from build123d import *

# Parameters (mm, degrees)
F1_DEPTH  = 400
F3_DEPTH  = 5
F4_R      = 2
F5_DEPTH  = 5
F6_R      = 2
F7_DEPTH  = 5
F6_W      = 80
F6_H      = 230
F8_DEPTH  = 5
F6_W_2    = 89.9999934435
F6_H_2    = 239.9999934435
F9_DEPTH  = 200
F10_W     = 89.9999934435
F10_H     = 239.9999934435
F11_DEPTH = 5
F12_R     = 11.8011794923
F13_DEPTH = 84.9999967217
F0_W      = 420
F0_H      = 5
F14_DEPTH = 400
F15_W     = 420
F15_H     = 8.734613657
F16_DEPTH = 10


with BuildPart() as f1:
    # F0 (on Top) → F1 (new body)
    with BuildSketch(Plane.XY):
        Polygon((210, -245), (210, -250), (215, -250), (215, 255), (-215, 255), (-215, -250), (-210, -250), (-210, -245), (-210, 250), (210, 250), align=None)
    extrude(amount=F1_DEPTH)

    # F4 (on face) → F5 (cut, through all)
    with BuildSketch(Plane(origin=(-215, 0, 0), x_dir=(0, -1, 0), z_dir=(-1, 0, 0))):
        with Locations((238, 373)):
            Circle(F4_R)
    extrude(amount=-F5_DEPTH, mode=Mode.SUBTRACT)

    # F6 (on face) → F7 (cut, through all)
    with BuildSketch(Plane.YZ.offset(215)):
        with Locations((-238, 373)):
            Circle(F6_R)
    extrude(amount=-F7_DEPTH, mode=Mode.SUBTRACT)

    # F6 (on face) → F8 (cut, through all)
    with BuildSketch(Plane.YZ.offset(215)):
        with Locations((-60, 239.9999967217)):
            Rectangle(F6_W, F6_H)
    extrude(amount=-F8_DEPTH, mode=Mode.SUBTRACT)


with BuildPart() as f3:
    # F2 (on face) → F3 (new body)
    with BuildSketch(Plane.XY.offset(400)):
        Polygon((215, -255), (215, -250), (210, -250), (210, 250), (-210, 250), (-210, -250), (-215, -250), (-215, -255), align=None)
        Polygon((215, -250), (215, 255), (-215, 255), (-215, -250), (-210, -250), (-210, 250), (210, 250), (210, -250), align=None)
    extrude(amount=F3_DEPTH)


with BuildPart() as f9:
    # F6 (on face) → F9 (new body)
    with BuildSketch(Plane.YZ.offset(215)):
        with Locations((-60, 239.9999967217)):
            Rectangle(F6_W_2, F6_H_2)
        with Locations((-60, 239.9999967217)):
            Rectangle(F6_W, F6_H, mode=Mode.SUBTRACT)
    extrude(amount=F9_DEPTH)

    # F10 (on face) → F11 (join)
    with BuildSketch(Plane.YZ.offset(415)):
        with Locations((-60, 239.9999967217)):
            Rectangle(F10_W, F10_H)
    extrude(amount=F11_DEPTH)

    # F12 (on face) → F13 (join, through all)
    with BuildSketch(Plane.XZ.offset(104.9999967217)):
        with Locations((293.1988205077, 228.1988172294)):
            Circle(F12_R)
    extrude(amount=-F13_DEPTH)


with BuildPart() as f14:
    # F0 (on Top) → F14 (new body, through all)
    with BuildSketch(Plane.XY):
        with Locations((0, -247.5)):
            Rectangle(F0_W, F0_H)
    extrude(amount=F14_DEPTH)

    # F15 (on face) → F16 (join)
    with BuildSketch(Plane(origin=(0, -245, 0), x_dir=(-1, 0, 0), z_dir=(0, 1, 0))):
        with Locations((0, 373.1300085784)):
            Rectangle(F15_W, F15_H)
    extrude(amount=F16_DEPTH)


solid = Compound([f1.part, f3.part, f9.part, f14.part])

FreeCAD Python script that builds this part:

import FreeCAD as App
import Part
import Sketcher
from FreeCAD import Vector

doc = App.newDocument("Part")
body = doc.addObject("PartDesign::Body", "Body")

# Sketch on XY plane
sketch1 = body.newObject("Sketcher::SketchObject", "Sketch")
sketch1.AttachmentSupport = (doc.getObject("XY_Plane"), [""])
sketch1.MapMode = "FlatFace"
sketch1.addGeometry([
    Part.LineSegment(Vector(210, -250, 0), Vector(215, -250, 0)),  # 0
    Part.LineSegment(Vector(215, -250, 0), Vector(215, 255, 0)),  # 1
    Part.LineSegment(Vector(215, 255, 0), Vector(-215, 255, 0)),  # 2
    Part.LineSegment(Vector(-215, 255, 0), Vector(-215, -250, 0)),  # 3
    Part.LineSegment(Vector(-215, -250, 0), Vector(-210, -250, 0)),  # 4
    Part.LineSegment(Vector(-210, -250, 0), Vector(-210, 250, 0)),  # 5
    Part.LineSegment(Vector(-210, 250, 0), Vector(210, 250, 0)),  # 6
    Part.LineSegment(Vector(210, 250, 0), Vector(210, -250, 0)),  # 7
], False)
sketch1.addConstraint([
    Sketcher.Constraint("Coincident", 0, 2, 1, 1),
    Sketcher.Constraint("Coincident", 1, 2, 2, 1),
    Sketcher.Constraint("Coincident", 2, 2, 3, 1),
    Sketcher.Constraint("Coincident", 3, 2, 4, 1),
    Sketcher.Constraint("Coincident", 4, 2, 5, 1),
    Sketcher.Constraint("Coincident", 5, 2, 6, 1),
    Sketcher.Constraint("Coincident", 6, 2, 7, 1),
    Sketcher.Constraint("Coincident", 7, 2, 0, 1),
    Sketcher.Constraint("Horizontal", 0),
    Sketcher.Constraint("Vertical", 1),
    Sketcher.Constraint("Horizontal", 2),
    Sketcher.Constraint("Vertical", 3),
    Sketcher.Constraint("Horizontal", 4),
    Sketcher.Constraint("Vertical", 5),
    Sketcher.Constraint("Horizontal", 6),
    Sketcher.Constraint("Vertical", 7),
    Sketcher.Constraint("Symmetric", 4, 2, 6, 2, -1, 1),
    Sketcher.Constraint("Symmetric", 0, 2, 3, 2, -2),
    Sketcher.Constraint("DistanceX", 0, 1, 0, 2, 5.0),
    Sketcher.Constraint("DistanceX", 2, 2, 2, 1, 430.0),
    Sketcher.Constraint("DistanceY", 1, 1, 1, 2, 505.0),
    Sketcher.Constraint("DistanceY", 5, 1, 5, 2, 500.0),
])
pad1 = body.newObject("PartDesign::Pad", "Pad")
pad1.Profile = sketch1
pad1.Length = 400

# Sketch on YZ plane
sketch2 = body.newObject("Sketcher::SketchObject", "Sketch001")
sketch2.AttachmentSupport = (doc.getObject("YZ_Plane"), [""])
sketch2.MapMode = "FlatFace"
sketch2.AttachmentOffset = App.Placement(Vector(0, 0, -215), App.Rotation())
sketch2.addGeometry(Part.Circle(Vector(-238, 373, 0), Vector(0, 0, 1), 2), False)
sketch2.addConstraint([
    Sketcher.Constraint("Diameter", 0, 4.0),
    Sketcher.Constraint("DistanceX", 0, 3, -1, 1, 238.0),
    Sketcher.Constraint("DistanceY", -1, 1, 0, 3, 373.0),
])
pocket1 = body.newObject("PartDesign::Pocket", "Pocket")
pocket1.Profile = sketch2
pocket1.Type = "ThroughAll"
pocket1.Reversed = True

# Sketch on YZ plane
sketch3 = body.newObject("Sketcher::SketchObject", "Sketch002")
sketch3.AttachmentSupport = (doc.getObject("YZ_Plane"), [""])
sketch3.MapMode = "FlatFace"
sketch3.AttachmentOffset = App.Placement(Vector(0, 0, 215), App.Rotation())
sketch3.addGeometry(Part.Circle(Vector(-238, 373, 0), Vector(0, 0, 1), 2), False)
sketch3.addConstraint([
    Sketcher.Constraint("Diameter", 0, 4.0),
    Sketcher.Constraint("DistanceX", 0, 3, -1, 1, 238.0),
    Sketcher.Constraint("DistanceY", -1, 1, 0, 3, 373.0),
])
pocket2 = body.newObject("PartDesign::Pocket", "Pocket001")
pocket2.Profile = sketch3
pocket2.Type = "ThroughAll"

# Sketch on YZ plane
sketch4 = body.newObject("Sketcher::SketchObject", "Sketch003")
sketch4.AttachmentSupport = (doc.getObject("YZ_Plane"), [""])
sketch4.MapMode = "FlatFace"
sketch4.AttachmentOffset = App.Placement(Vector(0, 0, 215), App.Rotation())
sketch4.addGeometry([
    Part.LineSegment(Vector(-100, 354.999997, 0), Vector(-100, 124.999997, 0)),
    Part.LineSegment(Vector(-100, 124.999997, 0), Vector(-20, 124.999997, 0)),
    Part.LineSegment(Vector(-20, 124.999997, 0), Vector(-20, 354.999997, 0)),
    Part.LineSegment(Vector(-20, 354.999997, 0), Vector(-100, 354.999997, 0)),
], False)
sketch4.addConstraint([
    Sketcher.Constraint("Coincident", 0, 2, 1, 1),
    Sketcher.Constraint("Coincident", 1, 2, 2, 1),
    Sketcher.Constraint("Coincident", 2, 2, 3, 1),
    Sketcher.Constraint("Coincident", 3, 2, 0, 1),
    Sketcher.Constraint("Vertical", 0),
    Sketcher.Constraint("Horizontal", 1),
    Sketcher.Constraint("Vertical", 2),
    Sketcher.Constraint("Horizontal", 3),
    Sketcher.Constraint("DistanceX", 1, 1, 1, 2, 80.0),
    Sketcher.Constraint("DistanceY", 0, 2, 0, 1, 230.0),
    Sketcher.Constraint("DistanceX", 0, 2, -1, 1, 100.0),
    Sketcher.Constraint("DistanceY", -1, 1, 0, 2, 124.999997),
])
pocket3 = body.newObject("PartDesign::Pocket", "Pocket002")
pocket3.Profile = sketch4
pocket3.Length = 5
body2 = doc.addObject("PartDesign::Body", "Body001")

# Sketch on XY plane
sketch5 = body2.newObject("Sketcher::SketchObject", "Sketch004")
sketch5.AttachmentSupport = (doc.getObject("XY_Plane001"), [""])
sketch5.MapMode = "FlatFace"
sketch5.AttachmentOffset = App.Placement(Vector(0, 0, 400), App.Rotation())
sketch5.addGeometry([
    Part.LineSegment(Vector(215, -255, 0), Vector(215, 255, 0)),
    Part.LineSegment(Vector(215, 255, 0), Vector(-215, 255, 0)),
    Part.LineSegment(Vector(-215, 255, 0), Vector(-215, -255, 0)),
    Part.LineSegment(Vector(-215, -255, 0), Vector(215, -255, 0)),
], False)
sketch5.addConstraint([
    Sketcher.Constraint("Coincident", 0, 2, 1, 1),
    Sketcher.Constraint("Coincident", 1, 2, 2, 1),
    Sketcher.Constraint("Coincident", 2, 2, 3, 1),
    Sketcher.Constraint("Coincident", 3, 2, 0, 1),
    Sketcher.Constraint("Vertical", 0),
    Sketcher.Constraint("Horizontal", 1),
    Sketcher.Constraint("Vertical", 2),
    Sketcher.Constraint("Horizontal", 3),
    Sketcher.Constraint("Symmetric", 0, 2, 2, 2, -1, 1),
    Sketcher.Constraint("DistanceX", 1, 2, 1, 1, 430.0),
    Sketcher.Constraint("DistanceY", 0, 1, 0, 2, 510.0),
])
pad2 = body2.newObject("PartDesign::Pad", "Pad001")
pad2.Profile = sketch5
pad2.Length = 5
body3 = doc.addObject("PartDesign::Body", "Body002")

# Sketch on YZ plane
sketch6 = body3.newObject("Sketcher::SketchObject", "Sketch005")
sketch6.AttachmentSupport = (doc.getObject("YZ_Plane002"), [""])
sketch6.MapMode = "FlatFace"
sketch6.AttachmentOffset = App.Placement(Vector(0, 0, 215), App.Rotation())
sketch6.addGeometry([
    Part.LineSegment(Vector(-104.999997, 359.999993, 0), Vector(-104.999997, 120, 0)),  # 0
    Part.LineSegment(Vector(-104.999997, 120, 0), Vector(-15.000003, 120, 0)),  # 1
    Part.LineSegment(Vector(-15.000003, 120, 0), Vector(-15.000003, 359.999993, 0)),  # 2
    Part.LineSegment(Vector(-15.000003, 359.999993, 0), Vector(-104.999997, 359.999993, 0)),  # 3
    Part.LineSegment(Vector(-20, 124.999997, 0), Vector(-100, 124.999997, 0)),  # 4
    Part.LineSegment(Vector(-100, 124.999997, 0), Vector(-100, 354.999997, 0)),  # 5
    Part.LineSegment(Vector(-100, 354.999997, 0), Vector(-20, 354.999997, 0)),  # 6
    Part.LineSegment(Vector(-20, 354.999997, 0), Vector(-20, 124.999997, 0)),  # 7
], False)
sketch6.addConstraint([
    Sketcher.Constraint("Coincident", 0, 2, 1, 1),
    Sketcher.Constraint("Coincident", 1, 2, 2, 1),
    Sketcher.Constraint("Coincident", 2, 2, 3, 1),
    Sketcher.Constraint("Coincident", 3, 2, 0, 1),
    Sketcher.Constraint("Coincident", 4, 2, 5, 1),
    Sketcher.Constraint("Coincident", 5, 2, 6, 1),
    Sketcher.Constraint("Coincident", 6, 2, 7, 1),
    Sketcher.Constraint("Coincident", 7, 2, 4, 1),
    Sketcher.Constraint("Vertical", 0),
    Sketcher.Constraint("Horizontal", 1),
    Sketcher.Constraint("Vertical", 2),
    Sketcher.Constraint("Horizontal", 3),
    Sketcher.Constraint("Horizontal", 4),
    Sketcher.Constraint("Vertical", 5),
    Sketcher.Constraint("Horizontal", 6),
    Sketcher.Constraint("Vertical", 7),
    Sketcher.Constraint("DistanceX", 4, 2, 4, 1, 80.0),
    Sketcher.Constraint("DistanceY", 5, 1, 5, 2, 230.0),
    Sketcher.Constraint("DistanceY", -1, 1, 0, 2, 120.0),
    Sketcher.Constraint("DistanceX", 4, 2, -1, 1, 100.0),
    Sketcher.Constraint("DistanceX", 1, 1, 1, 2, 89.999993),
    Sketcher.Constraint("DistanceY", 0, 2, 0, 1, 239.999993),
    Sketcher.Constraint("DistanceX", 0, 2, -1, 1, 104.999997),
    Sketcher.Constraint("DistanceY", -1, 1, 4, 2, 124.999997),
])
pad3 = body3.newObject("PartDesign::Pad", "Pad002")
pad3.Profile = sketch6
pad3.Length = 200

# Sketch on YZ plane
sketch7 = body3.newObject("Sketcher::SketchObject", "Sketch006")
sketch7.AttachmentSupport = (doc.getObject("YZ_Plane002"), [""])
sketch7.MapMode = "FlatFace"
sketch7.AttachmentOffset = App.Placement(Vector(0, 0, 415), App.Rotation())
sketch7.addGeometry([
    Part.LineSegment(Vector(-104.999997, 359.999993, 0), Vector(-104.999997, 120, 0)),
    Part.LineSegment(Vector(-104.999997, 120, 0), Vector(-15.000003, 120, 0)),
    Part.LineSegment(Vector(-15.000003, 120, 0), Vector(-15.000003, 359.999993, 0)),
    Part.LineSegment(Vector(-15.000003, 359.999993, 0), Vector(-104.999997, 359.999993, 0)),
], False)
sketch7.addConstraint([
    Sketcher.Constraint("Coincident", 0, 2, 1, 1),
    Sketcher.Constraint("Coincident", 1, 2, 2, 1),
    Sketcher.Constraint("Coincident", 2, 2, 3, 1),
    Sketcher.Constraint("Coincident", 3, 2, 0, 1),
    Sketcher.Constraint("Vertical", 0),
    Sketcher.Constraint("Horizontal", 1),
    Sketcher.Constraint("Vertical", 2),
    Sketcher.Constraint("Horizontal", 3),
    Sketcher.Constraint("DistanceY", -1, 1, 0, 2, 120.0),
    Sketcher.Constraint("DistanceX", 1, 1, 1, 2, 89.999993),
    Sketcher.Constraint("DistanceY", 0, 2, 0, 1, 239.999993),
    Sketcher.Constraint("DistanceX", 0, 2, -1, 1, 104.999997),
])
pad4 = body3.newObject("PartDesign::Pad", "Pad003")
pad4.Profile = sketch7
pad4.Length = 5

# Sketch on XZ plane
sketch8 = body3.newObject("Sketcher::SketchObject", "Sketch007")
sketch8.AttachmentSupport = (doc.getObject("XZ_Plane002"), [""])
sketch8.MapMode = "FlatFace"
sketch8.AttachmentOffset = App.Placement(Vector(0, 0, 104.999997), App.Rotation())
sketch8.addGeometry(Part.Circle(Vector(293.198821, 228.198817, 0), Vector(0, 0, 1), 11.801179), False)
sketch8.addConstraint([
    Sketcher.Constraint("Diameter", 0, 23.602359),
    Sketcher.Constraint("DistanceX", -1, 1, 0, 3, 293.198821),
    Sketcher.Constraint("DistanceY", -1, 1, 0, 3, 228.198817),
])
pad5 = body3.newObject("PartDesign::Pad", "Pad004")
pad5.Profile = sketch8
pad5.Type = "UpToLast"
pad5.Reversed = True
body4 = doc.addObject("PartDesign::Body", "Body003")

# Sketch on XY plane
sketch9 = body4.newObject("Sketcher::SketchObject", "Sketch008")
sketch9.AttachmentSupport = (doc.getObject("XY_Plane003"), [""])
sketch9.MapMode = "FlatFace"
sketch9.addGeometry([
    Part.LineSegment(Vector(-210, -245, 0), Vector(-210, -250, 0)),
    Part.LineSegment(Vector(-210, -250, 0), Vector(210, -250, 0)),
    Part.LineSegment(Vector(210, -250, 0), Vector(210, -245, 0)),
    Part.LineSegment(Vector(210, -245, 0), Vector(-210, -245, 0)),
], False)
sketch9.addConstraint([
    Sketcher.Constraint("Coincident", 0, 2, 1, 1),
    Sketcher.Constraint("Coincident", 1, 2, 2, 1),
    Sketcher.Constraint("Coincident", 2, 2, 3, 1),
    Sketcher.Constraint("Coincident", 3, 2, 0, 1),
    Sketcher.Constraint("Vertical", 0),
    Sketcher.Constraint("Horizontal", 1),
    Sketcher.Constraint("Vertical", 2),
    Sketcher.Constraint("Horizontal", 3),
    Sketcher.Constraint("DistanceX", 1, 1, 1, 2, 420.0),
    Sketcher.Constraint("DistanceY", 0, 2, 0, 1, 5.0),
    Sketcher.Constraint("DistanceX", 0, 2, -1, 1, 210.0),
    Sketcher.Constraint("DistanceY", 0, 2, -1, 1, 250.0),
])
pad6 = body4.newObject("PartDesign::Pad", "Pad005")
pad6.Profile = sketch9
pad6.Length = 400

# Sketch on XZ plane
sketch10 = body4.newObject("Sketcher::SketchObject", "Sketch009")
sketch10.AttachmentSupport = (doc.getObject("XZ_Plane003"), [""])
sketch10.MapMode = "FlatFace"
sketch10.AttachmentOffset = App.Placement(Vector(0, 0, 245), App.Rotation())
sketch10.addGeometry([
    Part.LineSegment(Vector(210, 377.497315, 0), Vector(210, 368.762702, 0)),
    Part.LineSegment(Vector(210, 368.762702, 0), Vector(-210, 368.762702, 0)),
    Part.LineSegment(Vector(-210, 368.762702, 0), Vector(-210, 377.497315, 0)),
    Part.LineSegment(Vector(-210, 377.497315, 0), Vector(210, 377.497315, 0)),
], False)
sketch10.addConstraint([
    Sketcher.Constraint("Coincident", 0, 2, 1, 1),
    Sketcher.Constraint("Coincident", 1, 2, 2, 1),
    Sketcher.Constraint("Coincident", 2, 2, 3, 1),
    Sketcher.Constraint("Coincident", 3, 2, 0, 1),
    Sketcher.Constraint("Vertical", 0),
    Sketcher.Constraint("Horizontal", 1),
    Sketcher.Constraint("Vertical", 2),
    Sketcher.Constraint("Horizontal", 3),
    Sketcher.Constraint("DistanceX", 1, 2, 1, 1, 420.0),
    Sketcher.Constraint("DistanceX", -1, 1, 0, 2, 210.0),
    Sketcher.Constraint("DistanceY", -1, 1, 0, 2, 368.762702),
    Sketcher.Constraint("DistanceY", 0, 2, 0, 1, 8.734614),
])
pad7 = body4.newObject("PartDesign::Pad", "Pad006")
pad7.Profile = sketch10
pad7.Length = 10
pad7.Reversed = True

doc.recompute()
